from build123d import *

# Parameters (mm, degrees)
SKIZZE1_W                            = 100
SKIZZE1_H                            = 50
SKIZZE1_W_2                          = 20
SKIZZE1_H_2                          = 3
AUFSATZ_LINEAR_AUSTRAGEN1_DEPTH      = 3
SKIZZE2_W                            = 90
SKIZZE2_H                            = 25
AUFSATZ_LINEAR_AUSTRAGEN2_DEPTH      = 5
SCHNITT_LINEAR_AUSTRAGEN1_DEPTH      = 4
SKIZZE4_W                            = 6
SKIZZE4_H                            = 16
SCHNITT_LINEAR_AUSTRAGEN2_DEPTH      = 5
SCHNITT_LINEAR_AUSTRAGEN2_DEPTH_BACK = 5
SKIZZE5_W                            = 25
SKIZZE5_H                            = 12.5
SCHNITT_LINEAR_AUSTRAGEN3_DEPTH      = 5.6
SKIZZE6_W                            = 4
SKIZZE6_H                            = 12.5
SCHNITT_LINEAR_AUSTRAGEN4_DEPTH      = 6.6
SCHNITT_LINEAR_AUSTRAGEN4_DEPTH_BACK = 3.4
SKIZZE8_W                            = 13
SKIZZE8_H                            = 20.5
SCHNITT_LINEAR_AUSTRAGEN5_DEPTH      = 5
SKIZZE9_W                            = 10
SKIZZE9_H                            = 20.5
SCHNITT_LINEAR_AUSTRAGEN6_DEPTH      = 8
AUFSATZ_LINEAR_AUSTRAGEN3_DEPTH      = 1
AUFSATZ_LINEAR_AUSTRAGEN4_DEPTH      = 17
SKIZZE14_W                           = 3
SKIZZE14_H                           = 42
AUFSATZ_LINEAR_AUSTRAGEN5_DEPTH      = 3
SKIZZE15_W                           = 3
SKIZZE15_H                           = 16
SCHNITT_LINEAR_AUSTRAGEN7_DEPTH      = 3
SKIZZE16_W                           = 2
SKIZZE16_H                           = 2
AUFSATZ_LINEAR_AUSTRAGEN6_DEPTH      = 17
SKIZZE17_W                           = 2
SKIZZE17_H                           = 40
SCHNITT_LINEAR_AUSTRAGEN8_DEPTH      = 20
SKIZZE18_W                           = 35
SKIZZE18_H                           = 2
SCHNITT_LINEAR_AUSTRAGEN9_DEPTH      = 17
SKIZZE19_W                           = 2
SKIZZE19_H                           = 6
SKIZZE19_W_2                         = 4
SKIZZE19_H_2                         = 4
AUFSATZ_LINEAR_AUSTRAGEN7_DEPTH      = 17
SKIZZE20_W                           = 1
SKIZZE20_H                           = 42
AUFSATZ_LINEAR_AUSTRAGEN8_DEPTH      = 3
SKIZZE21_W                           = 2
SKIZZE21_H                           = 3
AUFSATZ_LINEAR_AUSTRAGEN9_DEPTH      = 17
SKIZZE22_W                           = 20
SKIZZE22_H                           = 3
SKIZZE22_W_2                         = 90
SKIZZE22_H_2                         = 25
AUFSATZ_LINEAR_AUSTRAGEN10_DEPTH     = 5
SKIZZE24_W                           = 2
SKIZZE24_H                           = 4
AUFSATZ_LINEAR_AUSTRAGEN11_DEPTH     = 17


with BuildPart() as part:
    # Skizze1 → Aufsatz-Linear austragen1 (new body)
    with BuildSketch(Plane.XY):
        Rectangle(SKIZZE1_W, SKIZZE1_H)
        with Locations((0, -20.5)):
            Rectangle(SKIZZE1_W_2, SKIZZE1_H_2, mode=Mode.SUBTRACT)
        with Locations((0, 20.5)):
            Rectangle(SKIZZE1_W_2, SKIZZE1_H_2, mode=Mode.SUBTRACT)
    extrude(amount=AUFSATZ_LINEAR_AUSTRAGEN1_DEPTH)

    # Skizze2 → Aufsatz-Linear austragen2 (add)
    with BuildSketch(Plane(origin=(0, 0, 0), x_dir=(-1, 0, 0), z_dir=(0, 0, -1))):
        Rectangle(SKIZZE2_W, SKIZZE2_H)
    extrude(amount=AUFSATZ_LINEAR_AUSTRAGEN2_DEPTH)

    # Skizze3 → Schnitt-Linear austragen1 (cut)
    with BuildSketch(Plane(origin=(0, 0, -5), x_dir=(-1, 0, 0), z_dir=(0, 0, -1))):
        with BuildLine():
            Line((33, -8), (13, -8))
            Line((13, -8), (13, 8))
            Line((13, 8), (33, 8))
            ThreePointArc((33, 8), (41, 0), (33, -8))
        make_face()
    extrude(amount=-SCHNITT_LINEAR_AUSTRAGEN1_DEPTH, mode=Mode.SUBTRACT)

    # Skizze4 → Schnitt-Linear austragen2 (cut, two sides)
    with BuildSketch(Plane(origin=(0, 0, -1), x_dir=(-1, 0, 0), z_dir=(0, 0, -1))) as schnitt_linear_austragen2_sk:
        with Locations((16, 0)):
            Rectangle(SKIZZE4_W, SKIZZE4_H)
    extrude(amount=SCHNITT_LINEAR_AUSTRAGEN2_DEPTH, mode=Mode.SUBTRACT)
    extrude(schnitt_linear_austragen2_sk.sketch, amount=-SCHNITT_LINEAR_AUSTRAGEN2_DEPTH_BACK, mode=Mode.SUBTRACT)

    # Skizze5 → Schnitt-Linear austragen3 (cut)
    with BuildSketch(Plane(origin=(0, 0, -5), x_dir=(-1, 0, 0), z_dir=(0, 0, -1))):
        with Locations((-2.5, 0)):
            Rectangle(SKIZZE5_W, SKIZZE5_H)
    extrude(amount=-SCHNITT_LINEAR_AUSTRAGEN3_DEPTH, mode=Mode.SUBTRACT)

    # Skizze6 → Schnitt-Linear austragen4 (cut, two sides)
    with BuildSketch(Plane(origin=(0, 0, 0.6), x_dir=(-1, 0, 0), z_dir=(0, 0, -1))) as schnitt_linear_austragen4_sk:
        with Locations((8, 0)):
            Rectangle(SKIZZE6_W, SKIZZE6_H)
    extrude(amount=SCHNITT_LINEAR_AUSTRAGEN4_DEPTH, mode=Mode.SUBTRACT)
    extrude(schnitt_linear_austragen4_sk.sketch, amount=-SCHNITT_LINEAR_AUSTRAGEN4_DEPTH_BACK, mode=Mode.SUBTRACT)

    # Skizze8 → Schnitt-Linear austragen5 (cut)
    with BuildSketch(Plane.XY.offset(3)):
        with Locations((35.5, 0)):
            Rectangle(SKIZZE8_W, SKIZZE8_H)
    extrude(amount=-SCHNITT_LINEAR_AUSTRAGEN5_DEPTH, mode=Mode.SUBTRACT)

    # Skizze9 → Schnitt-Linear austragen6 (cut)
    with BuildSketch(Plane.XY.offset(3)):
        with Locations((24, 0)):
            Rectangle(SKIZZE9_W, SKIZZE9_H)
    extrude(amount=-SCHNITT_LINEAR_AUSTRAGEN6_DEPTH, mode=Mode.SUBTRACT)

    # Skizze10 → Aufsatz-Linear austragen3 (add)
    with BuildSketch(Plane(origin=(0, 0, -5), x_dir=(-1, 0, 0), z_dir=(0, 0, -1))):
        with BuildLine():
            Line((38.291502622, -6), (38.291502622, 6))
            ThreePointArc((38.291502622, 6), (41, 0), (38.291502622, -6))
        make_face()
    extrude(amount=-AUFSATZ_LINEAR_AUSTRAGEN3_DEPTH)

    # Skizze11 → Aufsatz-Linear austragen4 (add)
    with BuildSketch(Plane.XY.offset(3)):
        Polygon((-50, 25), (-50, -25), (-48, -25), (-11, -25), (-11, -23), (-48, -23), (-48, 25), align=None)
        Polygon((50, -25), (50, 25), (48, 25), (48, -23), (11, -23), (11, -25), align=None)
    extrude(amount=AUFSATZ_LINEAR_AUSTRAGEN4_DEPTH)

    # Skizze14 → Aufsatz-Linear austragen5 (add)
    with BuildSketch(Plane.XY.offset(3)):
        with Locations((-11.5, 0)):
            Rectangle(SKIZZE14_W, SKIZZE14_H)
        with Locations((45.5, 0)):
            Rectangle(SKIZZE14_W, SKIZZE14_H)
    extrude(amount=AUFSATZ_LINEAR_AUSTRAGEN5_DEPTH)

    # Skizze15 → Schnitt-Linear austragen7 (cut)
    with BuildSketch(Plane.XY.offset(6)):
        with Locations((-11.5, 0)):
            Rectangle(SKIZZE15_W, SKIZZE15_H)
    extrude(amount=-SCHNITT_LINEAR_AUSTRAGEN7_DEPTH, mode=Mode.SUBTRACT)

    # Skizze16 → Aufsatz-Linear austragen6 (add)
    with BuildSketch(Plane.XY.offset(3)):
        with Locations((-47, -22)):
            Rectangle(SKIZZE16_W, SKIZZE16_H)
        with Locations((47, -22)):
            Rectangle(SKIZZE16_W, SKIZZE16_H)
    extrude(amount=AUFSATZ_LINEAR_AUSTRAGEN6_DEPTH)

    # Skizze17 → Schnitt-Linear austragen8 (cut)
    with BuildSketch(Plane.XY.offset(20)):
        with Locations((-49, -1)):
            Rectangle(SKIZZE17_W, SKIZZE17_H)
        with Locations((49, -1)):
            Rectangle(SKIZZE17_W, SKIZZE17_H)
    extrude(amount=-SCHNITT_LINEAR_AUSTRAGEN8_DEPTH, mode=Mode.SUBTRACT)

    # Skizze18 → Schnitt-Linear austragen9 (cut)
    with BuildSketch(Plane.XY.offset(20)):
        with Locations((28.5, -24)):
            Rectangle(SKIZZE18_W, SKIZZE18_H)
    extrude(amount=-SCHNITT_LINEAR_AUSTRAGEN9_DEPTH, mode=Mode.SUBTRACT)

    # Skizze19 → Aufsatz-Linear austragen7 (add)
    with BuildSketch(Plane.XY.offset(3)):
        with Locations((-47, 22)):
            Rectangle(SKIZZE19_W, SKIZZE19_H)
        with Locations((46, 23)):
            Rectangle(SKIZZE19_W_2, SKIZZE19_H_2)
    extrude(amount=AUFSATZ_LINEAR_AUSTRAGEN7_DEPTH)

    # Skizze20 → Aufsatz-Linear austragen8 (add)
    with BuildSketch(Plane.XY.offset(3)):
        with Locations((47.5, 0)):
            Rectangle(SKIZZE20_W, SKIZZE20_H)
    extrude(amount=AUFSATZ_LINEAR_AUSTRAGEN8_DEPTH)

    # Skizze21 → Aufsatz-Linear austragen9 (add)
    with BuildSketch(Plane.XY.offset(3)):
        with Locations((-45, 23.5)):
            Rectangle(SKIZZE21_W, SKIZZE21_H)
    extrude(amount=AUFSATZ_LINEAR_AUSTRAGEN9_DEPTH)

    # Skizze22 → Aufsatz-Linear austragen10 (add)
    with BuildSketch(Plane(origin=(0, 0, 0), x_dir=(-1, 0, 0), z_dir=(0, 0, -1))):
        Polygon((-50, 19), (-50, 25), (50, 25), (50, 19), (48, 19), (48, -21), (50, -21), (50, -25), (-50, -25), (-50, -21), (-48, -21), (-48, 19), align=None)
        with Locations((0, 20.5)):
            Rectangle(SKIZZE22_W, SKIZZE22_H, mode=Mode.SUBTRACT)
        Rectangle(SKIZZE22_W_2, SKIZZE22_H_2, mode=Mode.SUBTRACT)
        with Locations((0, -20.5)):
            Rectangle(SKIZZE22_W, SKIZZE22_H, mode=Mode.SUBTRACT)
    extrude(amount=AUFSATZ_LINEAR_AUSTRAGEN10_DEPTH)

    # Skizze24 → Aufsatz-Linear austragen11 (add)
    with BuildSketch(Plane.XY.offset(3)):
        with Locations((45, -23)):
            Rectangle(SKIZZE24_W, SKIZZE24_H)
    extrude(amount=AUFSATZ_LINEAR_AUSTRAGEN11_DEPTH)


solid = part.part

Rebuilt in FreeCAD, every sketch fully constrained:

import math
import FreeCAD as App
import Part
import Sketcher
Q = App.Units.Quantity

doc = App.newDocument("Part")
body = doc.addObject("PartDesign::Body", "Body")

sketch1 = doc.addObject("Sketcher::SketchObject", "Sketch")
body.addObject(sketch1)
sketch1.AttachmentSupport = (doc.XY_Plane, [""])
sketch1.MapMode = "FlatFace"
sketch1.addGeometry([
    Part.LineSegment(App.Vector(-50, 25, 0), App.Vector(-50, -25, 0)),
    Part.LineSegment(App.Vector(-50, -25, 0), App.Vector(50, -25, 0)),
    Part.LineSegment(App.Vector(50, -25, 0), App.Vector(50, 25, 0)),
    Part.LineSegment(App.Vector(50, 25, 0), App.Vector(-50, 25, 0)),
    Part.LineSegment(App.Vector(10, -22, 0), App.Vector(-10, -22, 0)),
    Part.LineSegment(App.Vector(-10, -22, 0), App.Vector(-10, -19, 0)),
    Part.LineSegment(App.Vector(-10, -19, 0), App.Vector(10, -19, 0)),
    Part.LineSegment(App.Vector(10, -19, 0), App.Vector(10, -22, 0)),
    Part.LineSegment(App.Vector(10, 19, 0), App.Vector(-10, 19, 0)),
    Part.LineSegment(App.Vector(-10, 19, 0), App.Vector(-10, 22, 0)),
    Part.LineSegment(App.Vector(-10, 22, 0), App.Vector(10, 22, 0)),
    Part.LineSegment(App.Vector(10, 22, 0), App.Vector(10, 19, 0)),
], False)
sketch1.addConstraint([
    Sketcher.Constraint("Coincident", 0, 2, 1, 1),
    Sketcher.Constraint("Coincident", 1, 2, 2, 1),
    Sketcher.Constraint("Coincident", 2, 2, 3, 1),
    Sketcher.Constraint("Coincident", 3, 2, 0, 1),
    Sketcher.Constraint("Coincident", 4, 2, 5, 1),
    Sketcher.Constraint("Coincident", 5, 2, 6, 1),
    Sketcher.Constraint("Coincident", 6, 2, 7, 1),
    Sketcher.Constraint("Coincident", 7, 2, 4, 1),
    Sketcher.Constraint("Coincident", 8, 2, 9, 1),
    Sketcher.Constraint("Coincident", 9, 2, 10, 1),
    Sketcher.Constraint("Coincident", 10, 2, 11, 1),
    Sketcher.Constraint("Coincident", 11, 2, 8, 1),
    Sketcher.Constraint("Vertical", 0),
    Sketcher.Constraint("Horizontal", 1),
    Sketcher.Constraint("Vertical", 2),
    Sketcher.Constraint("Horizontal", 3),
    Sketcher.Constraint("Horizontal", 4),
    Sketcher.Constraint("Vertical", 5),
    Sketcher.Constraint("Horizontal", 6),
    Sketcher.Constraint("Vertical", 7),
    Sketcher.Constraint("Horizontal", 8),
    Sketcher.Constraint("Vertical", 9),
    Sketcher.Constraint("Horizontal", 10),
    Sketcher.Constraint("Vertical", 11),
    Sketcher.Constraint("Symmetric", 0, 2, 2, 2, -1, 1),
    Sketcher.Constraint("Symmetric", 6, 2, 8, 2, -1, 1),
    Sketcher.Constraint("Symmetric", 4, 2, 10, 2, -1, 1),
    Sketcher.Constraint("Vertical", 5, 2, 8, 2),
    Sketcher.Constraint("DistanceX", 1, 1, 1, 2, Q("100 mm")),
    Sketcher.Constraint("DistanceX", 4, 2, 4, 1, Q("20 mm")),
    Sketcher.Constraint("DistanceY", 0, 2, 0, 1, Q("50 mm")),
    Sketcher.Constraint("DistanceY", 5, 1, 5, 2, Q("3 mm")),
    Sketcher.Constraint("DistanceY", 4, 2, -1, 1, Q("22 mm")),
])
pad1 = doc.addObject("PartDesign::Pad", "Pad")
body.addObject(pad1)
pad1.Profile = sketch1
pad1.Length = 3

sketch2 = doc.addObject("Sketcher::SketchObject", "Sketch001")
body.addObject(sketch2)
sketch2.AttachmentSupport = (doc.XY_Plane, [""])
sketch2.MapMode = "FlatFace"
sketch2.addGeometry([
    Part.LineSegment(App.Vector(45, 12, 0), App.Vector(45, -12, 0)),
    Part.LineSegment(App.Vector(45, -12, 0), App.Vector(-45, -12, 0)),
    Part.LineSegment(App.Vector(-45, -12, 0), App.Vector(-45, 12, 0)),
    Part.LineSegment(App.Vector(-45, 12, 0), App.Vector(45, 12, 0)),
], False)
sketch2.addConstraint([
    Sketcher.Constraint("Coincident", 0, 2, 1, 1),
    Sketcher.Constraint("Coincident", 1, 2, 2, 1),
    Sketcher.Constraint("Coincident", 2, 2, 3, 1),
    Sketcher.Constraint("Coincident", 3, 2, 0, 1),
    Sketcher.Constraint("Vertical", 0),
    Sketcher.Constraint("Horizontal", 1),
    Sketcher.Constraint("Vertical", 2),
    Sketcher.Constraint("Horizontal", 3),
    Sketcher.Constraint("Symmetric", 0, 2, 2, 2, -1, 1),
    Sketcher.Constraint("DistanceX", 1, 2, 1, 1, Q("90 mm")),
    Sketcher.Constraint("DistanceY", 0, 2, 0, 1, Q("25 mm")),
])
pad2 = doc.addObject("PartDesign::Pad", "Pad001")
body.addObject(pad2)
pad2.Profile = sketch2
pad2.Length = 5
pad2.Reversed = True

sketch3 = doc.addObject("Sketcher::SketchObject", "Sketch002")
body.addObject(sketch3)
sketch3.AttachmentSupport = (doc.XY_Plane, [""])
sketch3.MapMode = "FlatFace"
sketch3.AttachmentOffset = App.Placement(App.Vector(0, 0, -5), App.Rotation())
sketch3.addGeometry([
    Part.LineSegment(App.Vector(-13, -8, 0), App.Vector(-33, -8, 0)),
    Part.ArcOfCircle(Part.Circle(App.Vector(-33, 0, 0), App.Vector(0, 0, 1), 8), math.radians(90), math.radians(270)),
    Part.LineSegment(App.Vector(-33, 8, 0), App.Vector(-13, 8, 0)),
    Part.LineSegment(App.Vector(-13, 8, 0), App.Vector(-13, -8, 0)),
], False)
sketch3.addConstraint([
    Sketcher.Constraint("Tangent", 0, 2, 1, 2),
    Sketcher.Constraint("Tangent", 1, 1, 2, 1),
    Sketcher.Constraint("Coincident", 2, 2, 3, 1),
    Sketcher.Constraint("Coincident", 3, 2, 0, 1),
    Sketcher.Constraint("Horizontal", 0),
    Sketcher.Constraint("Horizontal", 2),
    Sketcher.Constraint("Vertical", 3),
    Sketcher.Constraint("PointOnObject", 1, 3, -1),
    Sketcher.Constraint("Radius", 1, Q("8 mm")),
    Sketcher.Constraint("DistanceX", 0, 2, 0, 1, Q("20 mm")),
    Sketcher.Constraint("DistanceX", 1, 3, -1, 1, Q("33 mm")),
])
pocket1 = doc.addObject("PartDesign::Pocket", "Pocket")
body.addObject(pocket1)
pocket1.Profile = sketch3
pocket1.Length = 4
pocket1.Reversed = True

sketch4 = doc.addObject("Sketcher::SketchObject", "Sketch003")
body.addObject(sketch4)
sketch4.AttachmentSupport = (doc.XY_Plane, [""])
sketch4.MapMode = "FlatFace"
sketch4.AttachmentOffset = App.Placement(App.Vector(0, 0, -1), App.Rotation())
sketch4.addGeometry([
    Part.LineSegment(App.Vector(-13, 8, 0), App.Vector(-13, -8, 0)),
    Part.LineSegment(App.Vector(-13, -8, 0), App.Vector(-19, -8, 0)),
    Part.LineSegment(App.Vector(-19, -8, 0), App.Vector(-19, 8, 0)),
    Part.LineSegment(App.Vector(-19, 8, 0), App.Vector(-13, 8, 0)),
], False)
sketch4.addConstraint([
    Sketcher.Constraint("Coincident", 0, 2, 1, 1),
    Sketcher.Constraint("Coincident", 1, 2, 2, 1),
    Sketcher.Constraint("Coincident", 2, 2, 3, 1),
    Sketcher.Constraint("Coincident", 3, 2, 0, 1),
    Sketcher.Constraint("Vertical", 0),
    Sketcher.Constraint("Horizontal", 1),
    Sketcher.Constraint("Vertical", 2),
    Sketcher.Constraint("Horizontal", 3),
    Sketcher.Constraint("DistanceX", 1, 2, 1, 1, Q("6 mm")),
    Sketcher.Constraint("DistanceY", 0, 2, 0, 1, Q("16 mm")),
    Sketcher.Constraint("DistanceX", 0, 2, -1, 1, Q("13 mm")),
    Sketcher.Constraint("DistanceY", 0, 2, -1, 1, Q("8 mm")),
])
pocket2 = doc.addObject("PartDesign::Pocket", "Pocket001")
body.addObject(pocket2)
pocket2.Profile = sketch4
pocket2.Type = "ThroughAll"
pocket2.Midplane = True

sketch5 = doc.addObject("Sketcher::SketchObject", "Sketch004")
body.addObject(sketch5)
sketch5.AttachmentSupport = (doc.XY_Plane, [""])
sketch5.MapMode = "FlatFace"
sketch5.AttachmentOffset = App.Placement(App.Vector(0, 0, -5), App.Rotation())
sketch5.addGeometry([
    Part.LineSegment(App.Vector(15, 6, 0), App.Vector(15, -6, 0)),
    Part.LineSegment(App.Vector(15, -6, 0), App.Vector(-10, -6, 0)),
    Part.LineSegment(App.Vector(-10, -6, 0), App.Vector(-10, 6, 0)),
    Part.LineSegment(App.Vector(-10, 6, 0), App.Vector(15, 6, 0)),
], False)
sketch5.addConstraint([
    Sketcher.Constraint("Coincident", 0, 2, 1, 1),
    Sketcher.Constraint("Coincident", 1, 2, 2, 1),
    Sketcher.Constraint("Coincident", 2, 2, 3, 1),
    Sketcher.Constraint("Coincident", 3, 2, 0, 1),
    Sketcher.Constraint("Vertical", 0),
    Sketcher.Constraint("Horizontal", 1),
    Sketcher.Constraint("Vertical", 2),
    Sketcher.Constraint("Horizontal", 3),
    Sketcher.Constraint("DistanceX", 1, 2, 1, 1, Q("25 mm")),
    Sketcher.Constraint("DistanceY", 0, 2, 0, 1, Q("12.5 mm")),
    Sketcher.Constraint("DistanceX", -1, 1, 0, 2, Q("15 mm")),
    Sketcher.Constraint("DistanceY", 0, 2, -1, 1, Q("6.25 mm")),
])
pocket3 = doc.addObject("PartDesign::Pocket", "Pocket002")
body.addObject(pocket3)
pocket3.Profile = sketch5
pocket3.Length = 5.6
pocket3.Reversed = True

sketch6 = doc.addObject("Sketcher::SketchObject", "Sketch005")
body.addObject(sketch6)
sketch6.AttachmentSupport = (doc.XY_Plane, [""])
sketch6.MapMode = "FlatFace"
sketch6.AttachmentOffset = App.Placement(App.Vector(0, 0, 0.6), App.Rotation())
sketch6.addGeometry([
    Part.LineSegment(App.Vector(-6, 6.2, 0), App.Vector(-6, -6.2, 0)),
    Part.LineSegment(App.Vector(-6, -6.2, 0), App.Vector(-10, -6.2, 0)),
    Part.LineSegment(App.Vector(-10, -6.2, 0), App.Vector(-10, 6.2, 0)),
    Part.LineSegment(App.Vector(-10, 6.2, 0), App.Vector(-6, 6.2, 0)),
], False)
sketch6.addConstraint([
    Sketcher.Constraint("Coincident", 0, 2, 1, 1),
    Sketcher.Constraint("Coincident", 1, 2, 2, 1),
    Sketcher.Constraint("Coincident", 2, 2, 3, 1),
    Sketcher.Constraint("Coincident", 3, 2, 0, 1),
    Sketcher.Constraint("Vertical", 0),
    Sketcher.Constraint("Horizontal", 1),
    Sketcher.Constraint("Vertical", 2),
    Sketcher.Constraint("Horizontal", 3),
    Sketcher.Constraint("DistanceX", 1, 2, 1, 1, Q("4 mm")),
    Sketcher.Constraint("DistanceY", 0, 2, 0, 1, Q("12.5 mm")),
    Sketcher.Constraint("DistanceX", 0, 2, -1, 1, Q("6 mm")),
    Sketcher.Constraint("DistanceY", 0, 2, -1, 1, Q("6.25 mm")),
])
pocket4 = doc.addObject("PartDesign::Pocket", "Pocket003")
body.addObject(pocket4)
pocket4.Profile = sketch6
pocket4.Type = "ThroughAll"
pocket4.Midplane = True

sketch7 = doc.addObject("Sketcher::SketchObject", "Sketch006")
body.addObject(sketch7)
sketch7.AttachmentSupport = (doc.XY_Plane, [""])
sketch7.MapMode = "FlatFace"
sketch7.AttachmentOffset = App.Placement(App.Vector(0, 0, 3), App.Rotation())
sketch7.addGeometry([
    Part.LineSegment(App.Vector(29, 10, 0), App.Vector(29, -10, 0)),
    Part.LineSegment(App.Vector(29, -10, 0), App.Vector(42, -10, 0)),
    Part.LineSegment(App.Vector(42, -10, 0), App.Vector(42, 10, 0)),
    Part.LineSegment(App.Vector(42, 10, 0), App.Vector(29, 10, 0)),
], False)
sketch7.addConstraint([
    Sketcher.Constraint("Coincident", 0, 2, 1, 1),
    Sketcher.Constraint("Coincident", 1, 2, 2, 1),
    Sketcher.Constraint("Coincident", 2, 2, 3, 1),
    Sketcher.Constraint("Coincident", 3, 2, 0, 1),
    Sketcher.Constraint("Vertical", 0),
    Sketcher.Constraint("Horizontal", 1),
    Sketcher.Constraint("Vertical", 2),
    Sketcher.Constraint("Horizontal", 3),
    Sketcher.Constraint("DistanceX", 1, 1, 1, 2, Q("13 mm")),
    Sketcher.Constraint("DistanceY", 0, 2, 0, 1, Q("20.5 mm")),
    Sketcher.Constraint("DistanceX", -1, 1, 0, 2, Q("29 mm")),
    Sketcher.Constraint("DistanceY", 0, 2, -1, 1, Q("10.25 mm")),
])
pocket5 = doc.addObject("PartDesign::Pocket", "Pocket004")
body.addObject(pocket5)
pocket5.Profile = sketch7
pocket5.Length = 5

sketch8 = doc.addObject("Sketcher::SketchObject", "Sketch007")
body.addObject(sketch8)
sketch8.AttachmentSupport = (doc.XY_Plane, [""])
sketch8.MapMode = "FlatFace"
sketch8.AttachmentOffset = App.Placement(App.Vector(0, 0, 3), App.Rotation())
sketch8.addGeometry([
    Part.LineSegment(App.Vector(19, 10, 0), App.Vector(19, -10, 0)),
    Part.LineSegment(App.Vector(19, -10, 0), App.Vector(29, -10, 0)),
    Part.LineSegment(App.Vector(29, -10, 0), App.Vector(29, 10, 0)),
    Part.LineSegment(App.Vector(29, 10, 0), App.Vector(19, 10, 0)),
], False)
sketch8.addConstraint([
    Sketcher.Constraint("Coincident", 0, 2, 1, 1),
    Sketcher.Constraint("Coincident", 1, 2, 2, 1),
    Sketcher.Constraint("Coincident", 2, 2, 3, 1),
    Sketcher.Constraint("Coincident", 3, 2, 0, 1),
    Sketcher.Constraint("Vertical", 0),
    Sketcher.Constraint("Horizontal", 1),
    Sketcher.Constraint("Vertical", 2),
    Sketcher.Constraint("Horizontal", 3),
    Sketcher.Constraint("DistanceX", 1, 1, 1, 2, Q("10 mm")),
    Sketcher.Constraint("DistanceY", 0, 2, 0, 1, Q("20.5 mm")),
    Sketcher.Constraint("DistanceX", -1, 1, 0, 2, Q("19 mm")),
    Sketcher.Constraint("DistanceY", 0, 2, -1, 1, Q("10.25 mm")),
])
pocket6 = doc.addObject("PartDesign::Pocket", "Pocket005")
body.addObject(pocket6)
pocket6.Profile = sketch8
pocket6.Length = 8

sketch9 = doc.addObject("Sketcher::SketchObject", "Sketch008")
body.addObject(sketch9)
sketch9.AttachmentSupport = (doc.XY_Plane, [""])
sketch9.MapMode = "FlatFace"
sketch9.AttachmentOffset = App.Placement(App.Vector(0, 0, -5), App.Rotation())
sketch9.addGeometry([
    Part.LineSegment(App.Vector(-38, 6, 0), App.Vector(-38, -6, 0)),
    Part.ArcOfCircle(Part.Circle(App.Vector(-33, 0, 0), App.Vector(0, 0, 1), 8), math.radians(131), math.radians(229)),
], False)
sketch9.addConstraint([
    Sketcher.Constraint("Coincident", 0, 1, 1, 1),
    Sketcher.Constraint("Coincident", 1, 2, 0, 2),
    Sketcher.Constraint("Vertical", 0),
    Sketcher.Constraint("PointOnObject", 1, 3, -1),
    Sketcher.Constraint("Radius", 1, Q("8 mm")),
    Sketcher.Constraint("DistanceY", 0, 2, 0, 1, Q("12 mm")),
    Sketcher.Constraint("DistanceX", 1, 3, -1, 1, Q("33 mm")),
])
pad3 = doc.addObject("PartDesign::Pad", "Pad002")
body.addObject(pad3)
pad3.Profile = sketch9
pad3.Length = 1

sketch10 = doc.addObject("Sketcher::SketchObject", "Sketch009")
body.addObject(sketch10)
sketch10.AttachmentSupport = (doc.XY_Plane, [""])
sketch10.MapMode = "FlatFace"
sketch10.AttachmentOffset = App.Placement(App.Vector(0, 0, 3), App.Rotation())
sketch10.addGeometry([
    Part.LineSegment(App.Vector(-50, 25, 0), App.Vector(-50, -25, 0)),
    Part.LineSegment(App.Vector(-50, -25, 0), App.Vector(-11, -25, 0)),
    Part.LineSegment(App.Vector(-11, -25, 0), App.Vector(-11, -23, 0)),
    Part.LineSegment(App.Vector(-11, -23, 0), App.Vector(-48, -23, 0)),
    Part.LineSegment(App.Vector(-48, -23, 0), App.Vector(-48, 25, 0)),
    Part.LineSegment(App.Vector(-48, 25, 0), App.Vector(-50, 25, 0)),
    Part.LineSegment(App.Vector(50, -25, 0), App.Vector(50, 25, 0)),
    Part.LineSegment(App.Vector(50, 25, 0), App.Vector(48, 25, 0)),
    Part.LineSegment(App.Vector(48, 25, 0), App.Vector(48, -23, 0)),
    Part.LineSegment(App.Vector(48, -23, 0), App.Vector(11, -23, 0)),
    Part.LineSegment(App.Vector(11, -23, 0), App.Vector(11, -25, 0)),
    Part.LineSegment(App.Vector(11, -25, 0), App.Vector(50, -25, 0)),
], False)
sketch10.addConstraint([
    Sketcher.Constraint("Coincident", 0, 2, 1, 1),
    Sketcher.Constraint("Coincident", 1, 2, 2, 1),
    Sketcher.Constraint("Coincident", 2, 2, 3, 1),
    Sketcher.Constraint("Coincident", 3, 2, 4, 1),
    Sketcher.Constraint("Coincident", 4, 2, 5, 1),
    Sketcher.Constraint("Coincident", 5, 2, 0, 1),
    Sketcher.Constraint("Coincident", 6, 2, 7, 1),
    Sketcher.Constraint("Coincident", 7, 2, 8, 1),
    Sketcher.Constraint("Coincident", 8, 2, 9, 1),
    Sketcher.Constraint("Coincident", 9, 2, 10, 1),
    Sketcher.Constraint("Coincident", 10, 2, 11, 1),
    Sketcher.Constraint("Coincident", 11, 2, 6, 1),
    Sketcher.Constraint("Vertical", 0),
    Sketcher.Constraint("Horizontal", 1),
    Sketcher.Constraint("Vertical", 2),
    Sketcher.Constraint("Horizontal", 3),
    Sketcher.Constraint("Vertical", 4),
    Sketcher.Constraint("Horizontal", 5),
    Sketcher.Constraint("Vertical", 6),
    Sketcher.Constraint("Horizontal", 7),
    Sketcher.Constraint("Vertical", 8),
    Sketcher.Constraint("Horizontal", 9),
    Sketcher.Constraint("Vertical", 10),
    Sketcher.Constraint("Horizontal", 11),
    Sketcher.Constraint("Symmetric", 0, 2, 6, 2, -1, 1),
    Sketcher.Constraint("Symmetric", 4, 2, 7, 2, -2),
    Sketcher.Constraint("Symmetric", 2, 2, 9, 2, -2),
    Sketcher.Constraint("Horizontal", 1, 2, 10, 2),
    Sketcher.Constraint("Equal", 7, 2),
    Sketcher.Constraint("DistanceX", 1, 1, 1, 2, Q("39 mm")),
    Sketcher.Constraint("DistanceX", 3, 2, 3, 1, Q("37 mm")),
    Sketcher.Constraint("DistanceY", 0, 2, 0, 1, Q("50 mm")),
    Sketcher.Constraint("DistanceX", 0, 2, -1, 1, Q("50 mm")),
])
pad4 = doc.addObject("PartDesign::Pad", "Pad003")
body.addObject(pad4)
pad4.Profile = sketch10
pad4.Length = 17

sketch11 = doc.addObject("Sketcher::SketchObject", "Sketch010")
body.addObject(sketch11)
sketch11.AttachmentSupport = (doc.XY_Plane, [""])
sketch11.MapMode = "FlatFace"
sketch11.AttachmentOffset = App.Placement(App.Vector(0, 0, 3), App.Rotation())
sketch11.addGeometry([
    Part.LineSegment(App.Vector(-13, 21, 0), App.Vector(-13, -21, 0)),
    Part.LineSegment(App.Vector(-13, -21, 0), App.Vector(-10, -21, 0)),
    Part.LineSegment(App.Vector(-10, -21, 0), App.Vector(-10, 21, 0)),
    Part.LineSegment(App.Vector(-10, 21, 0), App.Vector(-13, 21, 0)),
    Part.LineSegment(App.Vector(44, 21, 0), App.Vector(44, -21, 0)),
    Part.LineSegment(App.Vector(44, -21, 0), App.Vector(47, -21, 0)),
    Part.LineSegment(App.Vector(47, -21, 0), App.Vector(47, 21, 0)),
    Part.LineSegment(App.Vector(47, 21, 0), App.Vector(44, 21, 0)),
], False)
sketch11.addConstraint([
    Sketcher.Constraint("Coincident", 0, 2, 1, 1),
    Sketcher.Constraint("Coincident", 1, 2, 2, 1),
    Sketcher.Constraint("Coincident", 2, 2, 3, 1),
    Sketcher.Constraint("Coincident", 3, 2, 0, 1),
    Sketcher.Constraint("Coincident", 4, 2, 5, 1),
    Sketcher.Constraint("Coincident", 5, 2, 6, 1),
    Sketcher.Constraint("Coincident", 6, 2, 7, 1),
    Sketcher.Constraint("Coincident", 7, 2, 4, 1),
    Sketcher.Constraint("Vertical", 0),
    Sketcher.Constraint("Horizontal", 1),
    Sketcher.Constraint("Vertical", 2),
    Sketcher.Constraint("Horizontal", 3),
    Sketcher.Constraint("Vertical", 4),
    Sketcher.Constraint("Horizontal", 5),
    Sketcher.Constraint("Vertical", 6),
    Sketcher.Constraint("Horizontal", 7),
    Sketcher.Constraint("Horizontal", 1, 2, 4, 2),
    Sketcher.Constraint("Horizontal", 3, 2, 6, 2),
    Sketcher.Constraint("Equal", 3, 5),
    Sketcher.Constraint("DistanceX", 1, 1, 1, 2, Q("3 mm")),
    Sketcher.Constraint("DistanceY", 0, 2, 0, 1, Q("42 mm")),
    Sketcher.Constraint("DistanceX", 0, 2, -1, 1, Q("13 mm")),
    Sketcher.Constraint("DistanceY", 0, 2, -1, 1, Q("21 mm")),
    Sketcher.Constraint("DistanceX", -1, 1, 4, 2, Q("44 mm")),
])
pad5 = doc.addObject("PartDesign::Pad", "Pad004")
body.addObject(pad5)
pad5.Profile = sketch11
pad5.Length = 3

sketch12 = doc.addObject("Sketcher::SketchObject", "Sketch011")
body.addObject(sketch12)
sketch12.AttachmentSupport = (doc.XY_Plane, [""])
sketch12.MapMode = "FlatFace"
sketch12.AttachmentOffset = App.Placement(App.Vector(0, 0, 6), App.Rotation())
sketch12.addGeometry([
    Part.LineSegment(App.Vector(-13, 8, 0), App.Vector(-13, -8, 0)),
    Part.LineSegment(App.Vector(-13, -8, 0), App.Vector(-10, -8, 0)),
    Part.LineSegment(App.Vector(-10, -8, 0), App.Vector(-10, 8, 0)),
    Part.LineSegment(App.Vector(-10, 8, 0), App.Vector(-13, 8, 0)),
], False)
sketch12.addConstraint([
    Sketcher.Constraint("Coincident", 0, 2, 1, 1),
    Sketcher.Constraint("Coincident", 1, 2, 2, 1),
    Sketcher.Constraint("Coincident", 2, 2, 3, 1),
    Sketcher.Constraint("Coincident", 3, 2, 0, 1),
    Sketcher.Constraint("Vertical", 0),
    Sketcher.Constraint("Horizontal", 1),
    Sketcher.Constraint("Vertical", 2),
    Sketcher.Constraint("Horizontal", 3),
    Sketcher.Constraint("DistanceX", 1, 1, 1, 2, Q("3 mm")),
    Sketcher.Constraint("DistanceY", 0, 2, 0, 1, Q("16 mm")),
    Sketcher.Constraint("DistanceX", 0, 2, -1, 1, Q("13 mm")),
    Sketcher.Constraint("DistanceY", 0, 2, -1, 1, Q("8 mm")),
])
pocket7 = doc.addObject("PartDesign::Pocket", "Pocket006")
body.addObject(pocket7)
pocket7.Profile = sketch12
pocket7.Length = 3

sketch13 = doc.addObject("Sketcher::SketchObject", "Sketch012")
body.addObject(sketch13)
sketch13.AttachmentSupport = (doc.XY_Plane, [""])
sketch13.MapMode = "FlatFace"
sketch13.AttachmentOffset = App.Placement(App.Vector(0, 0, 3), App.Rotation())
sketch13.addGeometry([
    Part.LineSegment(App.Vector(-48, -21, 0), App.Vector(-48, -23, 0)),
    Part.LineSegment(App.Vector(-48, -23, 0), App.Vector(-46, -23, 0)),
    Part.LineSegment(App.Vector(-46, -23, 0), App.Vector(-46, -21, 0)),
    Part.LineSegment(App.Vector(-46, -21, 0), App.Vector(-48, -21, 0)),
    Part.LineSegment(App.Vector(46, -21, 0), App.Vector(46, -23, 0)),
    Part.LineSegment(App.Vector(46, -23, 0), App.Vector(48, -23, 0)),
    Part.LineSegment(App.Vector(48, -23, 0), App.Vector(48, -21, 0)),
    Part.LineSegment(App.Vector(48, -21, 0), App.Vector(46, -21, 0)),
], False)
sketch13.addConstraint([
    Sketcher.Constraint("Coincident", 0, 2, 1, 1),
    Sketcher.Constraint("Coincident", 1, 2, 2, 1),
    Sketcher.Constraint("Coincident", 2, 2, 3, 1),
    Sketcher.Constraint("Coincident", 3, 2, 0, 1),
    Sketcher.Constraint("Coincident", 4, 2, 5, 1),
    Sketcher.Constraint("Coincident", 5, 2, 6, 1),
    Sketcher.Constraint("Coincident", 6, 2, 7, 1),
    Sketcher.Constraint("Coincident", 7, 2, 4, 1),
    Sketcher.Constraint("Vertical", 0),
    Sketcher.Constraint("Horizontal", 1),
    Sketcher.Constraint("Vertical", 2),
    Sketcher.Constraint("Horizontal", 3),
    Sketcher.Constraint("Vertical", 4),
    Sketcher.Constraint("Horizontal", 5),
    Sketcher.Constraint("Vertical", 6),
    Sketcher.Constraint("Horizontal", 7),
    Sketcher.Constraint("Symmetric", 1, 2, 4, 2, -2),
    Sketcher.Constraint("Symmetric", 3, 2, 6, 2, -2),
    Sketcher.Constraint("Equal", 7, 0),
    Sketcher.Constraint("DistanceX", 1, 1, 1, 2, Q("2 mm")),
    Sketcher.Constraint("DistanceX", 0, 2, -1, 1, Q("48 mm")),
    Sketcher.Constraint("DistanceY", 0, 2, -1, 1, Q("23 mm")),
])
pad6 = doc.addObject("PartDesign::Pad", "Pad005")
body.addObject(pad6)
pad6.Profile = sketch13
pad6.Length = 17

sketch14 = doc.addObject("Sketcher::SketchObject", "Sketch013")
body.addObject(sketch14)
sketch14.AttachmentSupport = (doc.XY_Plane, [""])
sketch14.MapMode = "FlatFace"
sketch14.AttachmentOffset = App.Placement(App.Vector(0, 0, 20), App.Rotation())
sketch14.addGeometry([
    Part.LineSegment(App.Vector(-50, 19, 0), App.Vector(-50, -21, 0)),
    Part.LineSegment(App.Vector(-50, -21, 0), App.Vector(-48, -21, 0)),
    Part.LineSegment(App.Vector(-48, -21, 0), App.Vector(-48, 19, 0)),
    Part.LineSegment(App.Vector(-48, 19, 0), App.Vector(-50, 19, 0)),
    Part.LineSegment(App.Vector(48, 19, 0), App.Vector(48, -21, 0)),
    Part.LineSegment(App.Vector(48, -21, 0), App.Vector(50, -21, 0)),
    Part.LineSegment(App.Vector(50, -21, 0), App.Vector(50, 19, 0)),
    Part.LineSegment(App.Vector(50, 19, 0), App.Vector(48, 19, 0)),
], False)
sketch14.addConstraint([
    Sketcher.Constraint("Coincident", 0, 2, 1, 1),
    Sketcher.Constraint("Coincident", 1, 2, 2, 1),
    Sketcher.Constraint("Coincident", 2, 2, 3, 1),
    Sketcher.Constraint("Coincident", 3, 2, 0, 1),
    Sketcher.Constraint("Coincident", 4, 2, 5, 1),
    Sketcher.Constraint("Coincident", 5, 2, 6, 1),
    Sketcher.Constraint("Coincident", 6, 2, 7, 1),
    Sketcher.Constraint("Coincident", 7, 2, 4, 1),
    Sketcher.Constraint("Vertical", 0),
    Sketcher.Constraint("Horizontal", 1),
    Sketcher.Constraint("Vertical", 2),
    Sketcher.Constraint("Horizontal", 3),
    Sketcher.Constraint("Vertical", 4),
    Sketcher.Constraint("Horizontal", 5),
    Sketcher.Constraint("Vertical", 6),
    Sketcher.Constraint("Horizontal", 7),
    Sketcher.Constraint("Symmetric", 1, 2, 4, 2, -2),
    Sketcher.Constraint("Symmetric", 3, 2, 6, 2, -2),
    Sketcher.Constraint("DistanceX", 1, 1, 1, 2, Q("2 mm")),
    Sketcher.Constraint("DistanceY", 0, 2, 0, 1, Q("40 mm")),
    Sketcher.Constraint("DistanceX", 0, 2, -1, 1, Q("50 mm")),
    Sketcher.Constraint("DistanceY", 0, 2, -1, 1, Q("21 mm")),
])
pocket8 = doc.addObject("PartDesign::Pocket", "Pocket007")
body.addObject(pocket8)
pocket8.Profile = sketch14
pocket8.Length = 20

sketch15 = doc.addObject("Sketcher::SketchObject", "Sketch014")
body.addObject(sketch15)
sketch15.AttachmentSupport = (doc.XY_Plane, [""])
sketch15.MapMode = "FlatFace"
sketch15.AttachmentOffset = App.Placement(App.Vector(0, 0, 20), App.Rotation())
sketch15.addGeometry([
    Part.LineSegment(App.Vector(11, -23, 0), App.Vector(11, -25, 0)),
    Part.LineSegment(App.Vector(11, -25, 0), App.Vector(46, -25, 0)),
    Part.LineSegment(App.Vector(46, -25, 0), App.Vector(46, -23, 0)),
    Part.LineSegment(App.Vector(46, -23, 0), App.Vector(11, -23, 0)),
], False)
sketch15.addConstraint([
    Sketcher.Constraint("Coincident", 0, 2, 1, 1),
    Sketcher.Constraint("Coincident", 1, 2, 2, 1),
    Sketcher.Constraint("Coincident", 2, 2, 3, 1),
    Sketcher.Constraint("Coincident", 3, 2, 0, 1),
    Sketcher.Constraint("Vertical", 0),
    Sketcher.Constraint("Horizontal", 1),
    Sketcher.Constraint("Vertical", 2),
    Sketcher.Constraint("Horizontal", 3),
    Sketcher.Constraint("DistanceX", 1, 1, 1, 2, Q("35 mm")),
    Sketcher.Constraint("DistanceY", 0, 2, 0, 1, Q("2 mm")),
    Sketcher.Constraint("DistanceX", -1, 1, 0, 2, Q("11 mm")),
    Sketcher.Constraint("DistanceY", 0, 2, -1, 1, Q("25 mm")),
])
pocket9 = doc.addObject("PartDesign::Pocket", "Pocket008")
body.addObject(pocket9)
pocket9.Profile = sketch15
pocket9.Length = 17

sketch16 = doc.addObject("Sketcher::SketchObject", "Sketch015")
body.addObject(sketch16)
sketch16.AttachmentSupport = (doc.XY_Plane, [""])
sketch16.MapMode = "FlatFace"
sketch16.AttachmentOffset = App.Placement(App.Vector(0, 0, 3), App.Rotation())
sketch16.addGeometry([
    Part.LineSegment(App.Vector(-48, 25, 0), App.Vector(-48, 19, 0)),
    Part.LineSegment(App.Vector(-48, 19, 0), App.Vector(-46, 19, 0)),
    Part.LineSegment(App.Vector(-46, 19, 0), App.Vector(-46, 25, 0)),
    Part.LineSegment(App.Vector(-46, 25, 0), App.Vector(-48, 25, 0)),
    Part.LineSegment(App.Vector(44, 25, 0), App.Vector(44, 21, 0)),
    Part.LineSegment(App.Vector(44, 21, 0), App.Vector(48, 21, 0)),
    Part.LineSegment(App.Vector(48, 21, 0), App.Vector(48, 25, 0)),
    Part.LineSegment(App.Vector(48, 25, 0), App.Vector(44, 25, 0)),
], False)
sketch16.addConstraint([
    Sketcher.Constraint("Coincident", 0, 2, 1, 1),
    Sketcher.Constraint("Coincident", 1, 2, 2, 1),
    Sketcher.Constraint("Coincident", 2, 2, 3, 1),
    Sketcher.Constraint("Coincident", 3, 2, 0, 1),
    Sketcher.Constraint("Coincident", 4, 2, 5, 1),
    Sketcher.Constraint("Coincident", 5, 2, 6, 1),
    Sketcher.Constraint("Coincident", 6, 2, 7, 1),
    Sketcher.Constraint("Coincident", 7, 2, 4, 1),
    Sketcher.Constraint("Vertical", 0),
    Sketcher.Constraint("Horizontal", 1),
    Sketcher.Constraint("Vertical", 2),
    Sketcher.Constraint("Horizontal", 3),
    Sketcher.Constraint("Vertical", 4),
    Sketcher.Constraint("Horizontal", 5),
    Sketcher.Constraint("Vertical", 6),
    Sketcher.Constraint("Horizontal", 7),
    Sketcher.Constraint("Symmetric", 3, 2, 6, 2, -2),
    Sketcher.Constraint("Equal", 7, 4),
    Sketcher.Constraint("DistanceX", 1, 1, 1, 2, Q("2 mm")),
    Sketcher.Constraint("DistanceX", 5, 1, 5, 2, Q("4 mm")),
    Sketcher.Constraint("DistanceY", 0, 2, 0, 1, Q("6 mm")),
    Sketcher.Constraint("DistanceX", 0, 2, -1, 1, Q("48 mm")),
    Sketcher.Constraint("DistanceY", -1, 1, 0, 2, Q("19 mm")),
])
pad7 = doc.addObject("PartDesign::Pad", "Pad006")
body.addObject(pad7)
pad7.Profile = sketch16
pad7.Length = 17

sketch17 = doc.addObject("Sketcher::SketchObject", "Sketch016")
body.addObject(sketch17)
sketch17.AttachmentSupport = (doc.XY_Plane, [""])
sketch17.MapMode = "FlatFace"
sketch17.AttachmentOffset = App.Placement(App.Vector(0, 0, 3), App.Rotation())
sketch17.addGeometry([
    Part.LineSegment(App.Vector(47, 21, 0), App.Vector(47, -21, 0)),
    Part.LineSegment(App.Vector(47, -21, 0), App.Vector(48, -21, 0)),
    Part.LineSegment(App.Vector(48, -21, 0), App.Vector(48, 21, 0)),
    Part.LineSegment(App.Vector(48, 21, 0), App.Vector(47, 21, 0)),
], False)
sketch17.addConstraint([
    Sketcher.Constraint("Coincident", 0, 2, 1, 1),
    Sketcher.Constraint("Coincident", 1, 2, 2, 1),
    Sketcher.Constraint("Coincident", 2, 2, 3, 1),
    Sketcher.Constraint("Coincident", 3, 2, 0, 1),
    Sketcher.Constraint("Vertical", 0),
    Sketcher.Constraint("Horizontal", 1),
    Sketcher.Constraint("Vertical", 2),
    Sketcher.Constraint("Horizontal", 3),
    Sketcher.Constraint("DistanceX", 1, 1, 1, 2, Q("1 mm")),
    Sketcher.Constraint("DistanceY", 0, 2, 0, 1, Q("42 mm")),
    Sketcher.Constraint("DistanceX", -1, 1, 0, 2, Q("47 mm")),
    Sketcher.Constraint("DistanceY", 0, 2, -1, 1, Q("21 mm")),
])
pad8 = doc.addObject("PartDesign::Pad", "Pad007")
body.addObject(pad8)
pad8.Profile = sketch17
pad8.Length = 3

sketch18 = doc.addObject("Sketcher::SketchObject", "Sketch017")
body.addObject(sketch18)
sketch18.AttachmentSupport = (doc.XY_Plane, [""])
sketch18.MapMode = "FlatFace"
sketch18.AttachmentOffset = App.Placement(App.Vector(0, 0, 3), App.Rotation())
sketch18.addGeometry([
    Part.LineSegment(App.Vector(-46, 25, 0), App.Vector(-46, 22, 0)),
    Part.LineSegment(App.Vector(-46, 22, 0), App.Vector(-44, 22, 0)),
    Part.LineSegment(App.Vector(-44, 22, 0), App.Vector(-44, 25, 0)),
    Part.LineSegment(App.Vector(-44, 25, 0), App.Vector(-46, 25, 0)),
], False)
sketch18.addConstraint([
    Sketcher.Constraint("Coincident", 0, 2, 1, 1),
    Sketcher.Constraint("Coincident", 1, 2, 2, 1),
    Sketcher.Constraint("Coincident", 2, 2, 3, 1),
    Sketcher.Constraint("Coincident", 3, 2, 0, 1),
    Sketcher.Constraint("Vertical", 0),
    Sketcher.Constraint("Horizontal", 1),
    Sketcher.Constraint("Vertical", 2),
    Sketcher.Constraint("Horizontal", 3),
    Sketcher.Constraint("DistanceX", 1, 1, 1, 2, Q("2 mm")),
    Sketcher.Constraint("DistanceY", 0, 2, 0, 1, Q("3 mm")),
    Sketcher.Constraint("DistanceX", 0, 2, -1, 1, Q("46 mm")),
    Sketcher.Constraint("DistanceY", -1, 1, 0, 2, Q("22 mm")),
])
pad9 = doc.addObject("PartDesign::Pad", "Pad008")
body.addObject(pad9)
pad9.Profile = sketch18
pad9.Length = 17

sketch19 = doc.addObject("Sketcher::SketchObject", "Sketch018")
body.addObject(sketch19)
sketch19.AttachmentSupport = (doc.XY_Plane, [""])
sketch19.MapMode = "FlatFace"
sketch19.addGeometry([
    Part.LineSegment(App.Vector(50, 25, 0), App.Vector(50, 19, 0)),
    Part.LineSegment(App.Vector(50, 19, 0), App.Vector(48, 19, 0)),
    Part.LineSegment(App.Vector(48, 19, 0), App.Vector(48, -21, 0)),
    Part.LineSegment(App.Vector(48, -21, 0), App.Vector(50, -21, 0)),
    Part.LineSegment(App.Vector(50, -21, 0), App.Vector(50, -25, 0)),
    Part.LineSegment(App.Vector(50, -25, 0), App.Vector(-50, -25, 0)),
    Part.LineSegment(App.Vector(-50, -25, 0), App.Vector(-50, -21, 0)),
    Part.LineSegment(App.Vector(-50, -21, 0), App.Vector(-48, -21, 0)),
    Part.LineSegment(App.Vector(-48, -21, 0), App.Vector(-48, 19, 0)),
    Part.LineSegment(App.Vector(-48, 19, 0), App.Vector(-50, 19, 0)),
    Part.LineSegment(App.Vector(-50, 19, 0), App.Vector(-50, 25, 0)),
    Part.LineSegment(App.Vector(-50, 25, 0), App.Vector(50, 25, 0)),
    Part.LineSegment(App.Vector(10, -22, 0), App.Vector(10, -19, 0)),
    Part.LineSegment(App.Vector(10, -19, 0), App.Vector(-10, -19, 0)),
    Part.LineSegment(App.Vector(-10, -19, 0), App.Vector(-10, -22, 0)),
    Part.LineSegment(App.Vector(-10, -22, 0), App.Vector(10, -22, 0)),
    Part.LineSegment(App.Vector(45, -12.5, 0), App.Vector(45, 12.5, 0)),
    Part.LineSegment(App.Vector(45, 12.5, 0), App.Vector(-45, 12.5, 0)),
    Part.LineSegment(App.Vector(-45, 12.5, 0), App.Vector(-45, -12.5, 0)),
    Part.LineSegment(App.Vector(-45, -12.5, 0), App.Vector(45, -12.5, 0)),
    Part.LineSegment(App.Vector(10, 19, 0), App.Vector(10, 22, 0)),
    Part.LineSegment(App.Vector(10, 22, 0), App.Vector(-10, 22, 0)),
    Part.LineSegment(App.Vector(-10, 22, 0), App.Vector(-10, 19, 0)),
    Part.LineSegment(App.Vector(-10, 19, 0), App.Vector(10, 19, 0)),
], False)
sketch19.addConstraint([
    Sketcher.Constraint("Coincident", 0, 2, 1, 1),
    Sketcher.Constraint("Coincident", 1, 2, 2, 1),
    Sketcher.Constraint("Coincident", 2, 2, 3, 1),
    Sketcher.Constraint("Coincident", 3, 2, 4, 1),
    Sketcher.Constraint("Coincident", 4, 2, 5, 1),
    Sketcher.Constraint("Coincident", 5, 2, 6, 1),
    Sketcher.Constraint("Coincident", 6, 2, 7, 1),
    Sketcher.Constraint("Coincident", 7, 2, 8, 1),
    Sketcher.Constraint("Coincident", 8, 2, 9, 1),
    Sketcher.Constraint("Coincident", 9, 2, 10, 1),
    Sketcher.Constraint("Coincident", 10, 2, 11, 1),
    Sketcher.Constraint("Coincident", 11, 2, 0, 1),
    Sketcher.Constraint("Coincident", 12, 2, 13, 1),
    Sketcher.Constraint("Coincident", 13, 2, 14, 1),
    Sketcher.Constraint("Coincident", 14, 2, 15, 1),
    Sketcher.Constraint("Coincident", 15, 2, 12, 1),
    Sketcher.Constraint("Coincident", 16, 2, 17, 1),
    Sketcher.Constraint("Coincident", 17, 2, 18, 1),
    Sketcher.Constraint("Coincident", 18, 2, 19, 1),
    Sketcher.Constraint("Coincident", 19, 2, 16, 1),
    Sketcher.Constraint("Coincident", 20, 2, 21, 1),
    Sketcher.Constraint("Coincident", 21, 2, 22, 1),
    Sketcher.Constraint("Coincident", 22, 2, 23, 1),
    Sketcher.Constraint("Coincident", 23, 2, 20, 1),
    Sketcher.Constraint("Vertical", 0),
    Sketcher.Constraint("Horizontal", 1),
    Sketcher.Constraint("Vertical", 2),
    Sketcher.Constraint("Horizontal", 3),
    Sketcher.Constraint("Vertical", 4),
    Sketcher.Constraint("Horizontal", 5),
    Sketcher.Constraint("Vertical", 6),
    Sketcher.Constraint("Horizontal", 7),
    Sketcher.Constraint("Vertical", 8),
    Sketcher.Constraint("Horizontal", 9),
    Sketcher.Constraint("Vertical", 10),
    Sketcher.Constraint("Horizontal", 11),
    Sketcher.Constraint("Vertical", 12),
    Sketcher.Constraint("Horizontal", 13),
    Sketcher.Constraint("Vertical", 14),
    Sketcher.Constraint("Horizontal", 15),
    Sketcher.Constraint("Vertical", 16),
    Sketcher.Constraint("Horizontal", 17),
    Sketcher.Constraint("Vertical", 18),
    Sketcher.Constraint("Horizontal", 19),
    Sketcher.Constraint("Vertical", 20),
    Sketcher.Constraint("Horizontal", 21),
    Sketcher.Constraint("Vertical", 22),
    Sketcher.Constraint("Horizontal", 23),
    Sketcher.Constraint("Symmetric", 4, 2, 10, 2, -1, 1),
    Sketcher.Constraint("Symmetric", 16, 2, 18, 2, -1, 1),
    Sketcher.Constraint("Symmetric", 14, 2, 20, 2, -1, 1),
    Sketcher.Constraint("Symmetric", 12, 2, 22, 2, -1, 1),
    Sketcher.Constraint("Symmetric", 3, 2, 6, 2, -2),
    Sketcher.Constraint("Symmetric", 1, 2, 8, 2, -2),
    Sketcher.Constraint("Horizontal", 9, 2, 22, 2),
    Sketcher.Constraint("Vertical", 0, 2, 3, 2),
    Sketcher.Constraint("Vertical", 15, 2, 20, 2),
    Sketcher.Constraint("DistanceX", 1, 2, 1, 1, Q("2 mm")),
    Sketcher.Constraint("DistanceX", 5, 2, 5, 1, Q("100 mm")),
    Sketcher.Constraint("DistanceX", 13, 2, 13, 1, Q("20 mm")),
    Sketcher.Constraint("DistanceX", 17, 2, 17, 1, Q("90 mm")),
    Sketcher.Constraint("DistanceY", 0, 2, 0, 1, Q("6 mm")),
    Sketcher.Constraint("DistanceY", 2, 2, 2, 1, Q("40 mm")),
    Sketcher.Constraint("DistanceY", 4, 2, 4, 1, Q("4 mm")),
    Sketcher.Constraint("DistanceY", 12, 1, 12, 2, Q("3 mm")),
    Sketcher.Constraint("DistanceY", 16, 1, 16, 2, Q("25 mm")),
])
pad10 = doc.addObject("PartDesign::Pad", "Pad009")
body.addObject(pad10)
pad10.Profile = sketch19
pad10.Length = 5
pad10.Reversed = True

sketch20 = doc.addObject("Sketcher::SketchObject", "Sketch019")
body.addObject(sketch20)
sketch20.AttachmentSupport = (doc.XY_Plane, [""])
sketch20.MapMode = "FlatFace"
sketch20.AttachmentOffset = App.Placement(App.Vector(0, 0, 3), App.Rotation())
sketch20.addGeometry([
    Part.LineSegment(App.Vector(44, -21, 0), App.Vector(44, -25, 0)),
    Part.LineSegment(App.Vector(44, -25, 0), App.Vector(46, -25, 0)),
    Part.LineSegment(App.Vector(46, -25, 0), App.Vector(46, -21, 0)),
    Part.LineSegment(App.Vector(46, -21, 0), App.Vector(44, -21, 0)),
], False)
sketch20.addConstraint([
    Sketcher.Constraint("Coincident", 0, 2, 1, 1),
    Sketcher.Constraint("Coincident", 1, 2, 2, 1),
    Sketcher.Constraint("Coincident", 2, 2, 3, 1),
    Sketcher.Constraint("Coincident", 3, 2, 0, 1),
    Sketcher.Constraint("Vertical", 0),
    Sketcher.Constraint("Horizontal", 1),
    Sketcher.Constraint("Vertical", 2),
    Sketcher.Constraint("Horizontal", 3),
    Sketcher.Constraint("DistanceX", 1, 1, 1, 2, Q("2 mm")),
    Sketcher.Constraint("DistanceY", 0, 2, 0, 1, Q("4 mm")),
    Sketcher.Constraint("DistanceX", -1, 1, 0, 2, Q("44 mm")),
    Sketcher.Constraint("DistanceY", 0, 2, -1, 1, Q("25 mm")),
])
pad11 = doc.addObject("PartDesign::Pad", "Pad010")
body.addObject(pad11)
pad11.Profile = sketch20
pad11.Length = 17

doc.recompute()
